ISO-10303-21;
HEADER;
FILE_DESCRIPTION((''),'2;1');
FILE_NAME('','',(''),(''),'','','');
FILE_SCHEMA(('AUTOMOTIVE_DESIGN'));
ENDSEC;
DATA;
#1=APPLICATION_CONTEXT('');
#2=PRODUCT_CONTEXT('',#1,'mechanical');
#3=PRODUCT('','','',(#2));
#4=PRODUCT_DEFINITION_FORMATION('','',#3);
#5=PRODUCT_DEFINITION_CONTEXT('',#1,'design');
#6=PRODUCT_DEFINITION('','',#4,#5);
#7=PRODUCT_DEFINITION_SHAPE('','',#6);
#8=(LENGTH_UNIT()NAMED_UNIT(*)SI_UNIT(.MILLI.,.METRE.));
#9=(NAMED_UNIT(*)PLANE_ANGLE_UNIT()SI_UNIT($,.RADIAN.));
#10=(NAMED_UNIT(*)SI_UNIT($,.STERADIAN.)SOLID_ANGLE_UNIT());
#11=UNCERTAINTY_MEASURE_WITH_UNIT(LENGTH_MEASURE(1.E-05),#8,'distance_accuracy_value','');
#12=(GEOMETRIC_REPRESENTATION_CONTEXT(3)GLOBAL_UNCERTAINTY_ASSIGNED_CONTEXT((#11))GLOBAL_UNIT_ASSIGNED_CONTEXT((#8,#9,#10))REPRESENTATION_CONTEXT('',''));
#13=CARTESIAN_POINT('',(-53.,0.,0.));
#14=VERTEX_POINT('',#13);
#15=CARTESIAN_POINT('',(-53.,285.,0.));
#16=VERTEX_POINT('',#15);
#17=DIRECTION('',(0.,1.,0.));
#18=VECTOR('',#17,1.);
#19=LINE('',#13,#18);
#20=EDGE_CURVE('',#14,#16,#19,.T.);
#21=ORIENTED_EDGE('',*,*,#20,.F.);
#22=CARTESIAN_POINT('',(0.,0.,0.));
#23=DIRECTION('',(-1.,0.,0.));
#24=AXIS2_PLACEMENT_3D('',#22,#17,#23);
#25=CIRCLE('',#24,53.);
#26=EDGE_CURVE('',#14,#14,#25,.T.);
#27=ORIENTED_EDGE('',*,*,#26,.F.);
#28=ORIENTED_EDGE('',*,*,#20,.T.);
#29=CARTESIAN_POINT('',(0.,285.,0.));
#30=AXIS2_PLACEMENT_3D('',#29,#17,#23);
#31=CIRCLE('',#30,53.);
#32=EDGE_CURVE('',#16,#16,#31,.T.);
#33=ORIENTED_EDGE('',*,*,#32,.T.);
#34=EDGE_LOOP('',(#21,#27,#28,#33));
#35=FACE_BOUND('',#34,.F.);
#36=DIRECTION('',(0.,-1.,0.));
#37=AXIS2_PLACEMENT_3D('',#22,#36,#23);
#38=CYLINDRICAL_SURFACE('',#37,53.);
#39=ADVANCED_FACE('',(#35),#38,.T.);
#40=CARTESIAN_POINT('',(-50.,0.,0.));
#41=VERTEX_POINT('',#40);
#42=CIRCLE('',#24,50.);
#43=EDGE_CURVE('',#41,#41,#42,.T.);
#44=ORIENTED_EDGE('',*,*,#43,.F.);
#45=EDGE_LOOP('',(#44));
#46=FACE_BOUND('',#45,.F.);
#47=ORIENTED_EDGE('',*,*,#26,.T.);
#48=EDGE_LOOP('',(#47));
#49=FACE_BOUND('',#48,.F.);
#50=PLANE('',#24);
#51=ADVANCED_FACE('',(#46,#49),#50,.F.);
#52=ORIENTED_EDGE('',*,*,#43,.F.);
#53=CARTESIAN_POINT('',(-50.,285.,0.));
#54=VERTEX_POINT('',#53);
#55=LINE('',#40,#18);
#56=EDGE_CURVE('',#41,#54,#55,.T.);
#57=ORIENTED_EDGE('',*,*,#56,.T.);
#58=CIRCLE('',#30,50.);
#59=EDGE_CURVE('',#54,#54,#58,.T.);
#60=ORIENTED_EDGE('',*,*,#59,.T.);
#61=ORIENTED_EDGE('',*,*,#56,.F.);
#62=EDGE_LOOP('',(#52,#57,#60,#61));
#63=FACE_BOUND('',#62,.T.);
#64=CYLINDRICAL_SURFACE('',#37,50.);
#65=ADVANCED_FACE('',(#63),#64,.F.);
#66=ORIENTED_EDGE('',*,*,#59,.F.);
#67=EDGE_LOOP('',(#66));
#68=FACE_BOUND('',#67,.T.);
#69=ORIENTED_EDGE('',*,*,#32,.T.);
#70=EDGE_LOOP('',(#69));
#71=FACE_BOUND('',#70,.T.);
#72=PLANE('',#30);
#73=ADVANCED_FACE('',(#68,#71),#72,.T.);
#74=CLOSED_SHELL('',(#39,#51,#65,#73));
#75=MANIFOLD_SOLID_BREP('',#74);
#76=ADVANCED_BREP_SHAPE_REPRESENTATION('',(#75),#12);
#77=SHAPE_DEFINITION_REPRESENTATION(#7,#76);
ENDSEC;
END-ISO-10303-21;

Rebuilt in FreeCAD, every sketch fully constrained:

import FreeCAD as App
import Part
import Sketcher

doc = App.newDocument("Part")
body = doc.addObject("PartDesign::Body", "Body")

sketch1 = doc.addObject("Sketcher::SketchObject", "Sketch")
body.addObject(sketch1)
sketch1.AttachmentSupport = (doc.XZ_Plane, [""])
sketch1.MapMode = "FlatFace"
sketch1.addGeometry(Part.Circle(App.Vector(0, 0, 0), App.Vector(0, 0, 1), 53), False)
sketch1.addGeometry(Part.Circle(App.Vector(0, 0, 0), App.Vector(0, 0, 1), 50), False)
sketch1.addConstraint(Sketcher.Constraint("Coincident", 0, 3, -1, 1))
sketch1.addConstraint(Sketcher.Constraint("Coincident", 1, 3, -1, 1))
sketch1.addConstraint(Sketcher.Constraint("Diameter", 1, 100.0))
sketch1.addConstraint(Sketcher.Constraint("Diameter", 0, 106.0))
pad1 = doc.addObject("PartDesign::Pad", "Pad")
body.addObject(pad1)
pad1.Profile = sketch1
pad1.Length = 285
pad1.Reversed = True

doc.recompute()
